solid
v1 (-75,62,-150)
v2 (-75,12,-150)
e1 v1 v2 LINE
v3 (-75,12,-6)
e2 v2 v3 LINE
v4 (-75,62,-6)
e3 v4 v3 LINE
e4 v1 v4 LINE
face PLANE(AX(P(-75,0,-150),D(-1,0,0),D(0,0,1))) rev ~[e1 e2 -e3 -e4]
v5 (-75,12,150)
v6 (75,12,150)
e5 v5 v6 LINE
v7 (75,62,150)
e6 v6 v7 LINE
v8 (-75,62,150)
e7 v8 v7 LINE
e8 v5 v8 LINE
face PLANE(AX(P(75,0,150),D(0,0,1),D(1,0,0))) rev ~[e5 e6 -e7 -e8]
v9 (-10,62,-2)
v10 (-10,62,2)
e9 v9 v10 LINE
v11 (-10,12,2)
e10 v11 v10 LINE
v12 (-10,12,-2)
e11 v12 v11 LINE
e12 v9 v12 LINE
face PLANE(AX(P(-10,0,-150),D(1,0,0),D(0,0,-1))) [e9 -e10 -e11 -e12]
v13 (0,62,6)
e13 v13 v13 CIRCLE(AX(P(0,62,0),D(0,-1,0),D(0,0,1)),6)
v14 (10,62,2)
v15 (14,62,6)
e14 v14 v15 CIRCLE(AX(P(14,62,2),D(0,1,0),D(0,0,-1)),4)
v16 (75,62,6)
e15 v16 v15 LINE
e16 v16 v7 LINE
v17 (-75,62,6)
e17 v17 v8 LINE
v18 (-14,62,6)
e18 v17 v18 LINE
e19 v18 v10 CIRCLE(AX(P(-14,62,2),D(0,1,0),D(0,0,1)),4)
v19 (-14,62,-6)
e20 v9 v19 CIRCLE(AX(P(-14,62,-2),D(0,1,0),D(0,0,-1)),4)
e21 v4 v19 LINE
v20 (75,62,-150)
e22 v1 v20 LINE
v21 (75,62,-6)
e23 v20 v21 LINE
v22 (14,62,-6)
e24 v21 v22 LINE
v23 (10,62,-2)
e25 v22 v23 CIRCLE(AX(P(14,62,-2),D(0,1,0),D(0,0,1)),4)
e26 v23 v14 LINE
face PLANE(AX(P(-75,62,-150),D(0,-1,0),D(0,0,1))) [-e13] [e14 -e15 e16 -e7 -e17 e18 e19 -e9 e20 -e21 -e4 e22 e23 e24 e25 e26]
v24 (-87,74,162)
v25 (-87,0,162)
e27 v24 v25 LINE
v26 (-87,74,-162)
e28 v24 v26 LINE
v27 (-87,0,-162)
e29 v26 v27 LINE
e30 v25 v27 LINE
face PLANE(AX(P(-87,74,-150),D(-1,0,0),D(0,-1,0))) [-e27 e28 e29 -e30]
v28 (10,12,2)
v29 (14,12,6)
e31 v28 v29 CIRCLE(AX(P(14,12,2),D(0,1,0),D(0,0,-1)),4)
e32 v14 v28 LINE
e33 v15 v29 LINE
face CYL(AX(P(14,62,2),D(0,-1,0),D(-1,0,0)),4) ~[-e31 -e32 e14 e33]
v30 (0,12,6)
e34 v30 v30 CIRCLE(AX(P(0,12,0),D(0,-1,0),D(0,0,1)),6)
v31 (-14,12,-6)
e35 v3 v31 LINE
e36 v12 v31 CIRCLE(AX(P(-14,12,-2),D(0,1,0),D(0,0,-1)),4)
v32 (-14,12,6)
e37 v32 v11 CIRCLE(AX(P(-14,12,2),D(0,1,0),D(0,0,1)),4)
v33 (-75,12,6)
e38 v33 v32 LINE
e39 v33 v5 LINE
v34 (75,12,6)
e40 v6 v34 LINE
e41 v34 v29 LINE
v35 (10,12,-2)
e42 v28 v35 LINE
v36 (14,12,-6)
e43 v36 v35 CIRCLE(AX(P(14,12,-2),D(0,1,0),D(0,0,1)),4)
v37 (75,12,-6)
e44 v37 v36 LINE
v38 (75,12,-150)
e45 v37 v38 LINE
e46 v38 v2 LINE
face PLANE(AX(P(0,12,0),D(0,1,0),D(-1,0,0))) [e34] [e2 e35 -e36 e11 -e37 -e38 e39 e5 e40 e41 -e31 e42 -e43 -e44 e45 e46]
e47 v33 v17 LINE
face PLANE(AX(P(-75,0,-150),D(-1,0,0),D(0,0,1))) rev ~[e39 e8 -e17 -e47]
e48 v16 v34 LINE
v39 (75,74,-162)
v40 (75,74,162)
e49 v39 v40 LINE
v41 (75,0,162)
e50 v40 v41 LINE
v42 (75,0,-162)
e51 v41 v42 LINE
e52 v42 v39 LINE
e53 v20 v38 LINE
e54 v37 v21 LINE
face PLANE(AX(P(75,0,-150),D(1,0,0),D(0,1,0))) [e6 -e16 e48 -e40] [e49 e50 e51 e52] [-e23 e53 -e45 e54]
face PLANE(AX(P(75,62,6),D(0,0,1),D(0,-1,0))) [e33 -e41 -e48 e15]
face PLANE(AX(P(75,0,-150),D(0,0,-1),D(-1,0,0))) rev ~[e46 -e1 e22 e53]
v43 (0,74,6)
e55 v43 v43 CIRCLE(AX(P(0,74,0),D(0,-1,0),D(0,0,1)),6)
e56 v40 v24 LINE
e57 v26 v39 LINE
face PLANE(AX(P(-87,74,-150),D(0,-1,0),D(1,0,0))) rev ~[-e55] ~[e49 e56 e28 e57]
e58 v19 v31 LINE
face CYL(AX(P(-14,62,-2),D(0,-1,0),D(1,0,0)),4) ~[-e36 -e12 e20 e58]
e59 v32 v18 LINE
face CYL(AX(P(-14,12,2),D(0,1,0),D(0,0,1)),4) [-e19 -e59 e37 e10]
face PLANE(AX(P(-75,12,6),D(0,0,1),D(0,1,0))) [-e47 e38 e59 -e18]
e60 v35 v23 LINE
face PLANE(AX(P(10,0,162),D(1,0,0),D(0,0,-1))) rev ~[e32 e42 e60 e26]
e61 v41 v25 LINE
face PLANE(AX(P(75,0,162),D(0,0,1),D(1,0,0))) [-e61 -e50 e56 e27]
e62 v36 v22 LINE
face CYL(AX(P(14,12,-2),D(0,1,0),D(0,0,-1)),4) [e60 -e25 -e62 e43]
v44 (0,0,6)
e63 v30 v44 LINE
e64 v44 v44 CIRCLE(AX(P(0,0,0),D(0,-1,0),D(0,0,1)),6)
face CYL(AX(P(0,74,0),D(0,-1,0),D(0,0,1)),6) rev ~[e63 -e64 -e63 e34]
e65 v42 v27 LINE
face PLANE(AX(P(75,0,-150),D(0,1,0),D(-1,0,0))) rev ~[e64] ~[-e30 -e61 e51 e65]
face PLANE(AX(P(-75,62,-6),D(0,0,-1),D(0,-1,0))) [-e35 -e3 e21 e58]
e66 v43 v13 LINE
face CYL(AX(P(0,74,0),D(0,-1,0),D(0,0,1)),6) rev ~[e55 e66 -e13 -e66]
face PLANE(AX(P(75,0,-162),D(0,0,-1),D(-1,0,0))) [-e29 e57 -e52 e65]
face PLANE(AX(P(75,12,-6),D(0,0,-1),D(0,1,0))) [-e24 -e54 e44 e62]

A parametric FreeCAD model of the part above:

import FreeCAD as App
import Part
import Sketcher

V = App.Vector


def edges_at(feature, points):
    """Names of the edges that pass closest to the given points."""
    edges = feature.Shape.Edges
    near = lambda p: min(range(len(edges)), key=lambda i: edges[i].distToShape(Part.Vertex(*p))[0])
    return sorted({f"Edge{near(p) + 1}" for p in points})

doc = App.newDocument("Part")
body = doc.addObject("PartDesign::Body", "Body")

# Sketch on XZ plane
sketch1 = body.newObject("Sketcher::SketchObject", "Sketch")
sketch1.AttachmentSupport = (doc.getObject("XZ_Plane"), [""])
sketch1.MapMode = "FlatFace"
sketch1.addGeometry([
    Part.LineSegment(V(-75, -150, 0), V(-75, 150, 0)),
    Part.LineSegment(V(-75, 150, 0), V(75, 150, 0)),
    Part.LineSegment(V(75, 150, 0), V(75, -150, 0)),
    Part.LineSegment(V(75, -150, 0), V(-75, -150, 0)),
], False)
sketch1.addConstraint([
    Sketcher.Constraint("Coincident", 0, 2, 1, 1),
    Sketcher.Constraint("Coincident", 1, 2, 2, 1),
    Sketcher.Constraint("Coincident", 2, 2, 3, 1),
    Sketcher.Constraint("Coincident", 3, 2, 0, 1),
    Sketcher.Constraint("Vertical", 0),
    Sketcher.Constraint("Horizontal", 1),
    Sketcher.Constraint("Vertical", 2),
    Sketcher.Constraint("Horizontal", 3),
    Sketcher.Constraint("Symmetric", 0, 2, 2, 2, -1, 1),
    Sketcher.Constraint("DistanceX", 1, 1, 1, 2, 150.0),
    Sketcher.Constraint("DistanceY", 0, 1, 0, 2, 300.0),
])
pad1 = body.newObject("PartDesign::Pad", "Pad")
pad1.Profile = sketch1
pad1.Length = 12
pad1.Reversed = True

# Sketch on YZ plane
sketch2 = body.newObject("Sketcher::SketchObject", "Sketch001")
sketch2.AttachmentSupport = (doc.getObject("YZ_Plane"), [""])
sketch2.MapMode = "FlatFace"
sketch2.AttachmentOffset = App.Placement(V(0, 0, -75), App.Rotation())
sketch2.addGeometry([
    Part.LineSegment(V(0, -150, 0), V(0, 150, 0)),
    Part.LineSegment(V(0, 150, 0), V(74, 150, 0)),
    Part.LineSegment(V(74, 150, 0), V(74, -150, 0)),
    Part.LineSegment(V(74, -150, 0), V(0, -150, 0)),
], False)
sketch2.addConstraint([
    Sketcher.Constraint("Coincident", 0, 2, 1, 1),
    Sketcher.Constraint("Coincident", 1, 2, 2, 1),
    Sketcher.Constraint("Coincident", 2, 2, 3, 1),
    Sketcher.Constraint("Coincident", 3, 2, 0, 1),
    Sketcher.Constraint("Vertical", 0),
    Sketcher.Constraint("Horizontal", 1),
    Sketcher.Constraint("Vertical", 2),
    Sketcher.Constraint("Horizontal", 3),
    Sketcher.Constraint("Symmetric", 0, 2, 3, 2, -1, 1),
    Sketcher.Constraint("DistanceX", 1, 1, 1, 2, 74.0),
    Sketcher.Constraint("DistanceY", 0, 1, 0, 2, 300.0),
])
pad2 = body.newObject("PartDesign::Pad", "Pad001")
pad2.Profile = sketch2
pad2.Length = 12
pad2.Reversed = True

# Sketch on YZ plane
sketch3 = body.newObject("Sketcher::SketchObject", "Sketch002")
sketch3.AttachmentSupport = (doc.getObject("YZ_Plane"), [""])
sketch3.MapMode = "FlatFace"
sketch3.AttachmentOffset = App.Placement(V(0, 0, -75), App.Rotation())
sketch3.addGeometry([
    Part.LineSegment(V(74, 150, 0), V(62, 150, 0)),
    Part.LineSegment(V(62, 150, 0), V(62, -150, 0)),
    Part.LineSegment(V(62, -150, 0), V(74, -150, 0)),
    Part.LineSegment(V(74, -150, 0), V(74, 150, 0)),
], False)
sketch3.addConstraint([
    Sketcher.Constraint("Coincident", 0, 2, 1, 1),
    Sketcher.Constraint("Coincident", 1, 2, 2, 1),
    Sketcher.Constraint("Coincident", 2, 2, 3, 1),
    Sketcher.Constraint("Coincident", 3, 2, 0, 1),
    Sketcher.Constraint("Horizontal", 0),
    Sketcher.Constraint("Vertical", 1),
    Sketcher.Constraint("Horizontal", 2),
    Sketcher.Constraint("Vertical", 3),
    Sketcher.Constraint("DistanceX", 0, 2, 0, 1, 12.0),
    Sketcher.Constraint("DistanceY", 1, 2, 1, 1, 300.0),
    Sketcher.Constraint("DistanceX", -1, 1, 0, 2, 62.0),
    Sketcher.Constraint("DistanceY", -1, 1, 0, 2, 150.0),
])
pad3 = body.newObject("PartDesign::Pad", "Pad002")
pad3.Profile = sketch3
pad3.Length = 150

# Sketch on XY plane
sketch4 = body.newObject("Sketcher::SketchObject", "Sketch003")
sketch4.AttachmentSupport = (doc.getObject("XY_Plane"), [""])
sketch4.MapMode = "FlatFace"
sketch4.AttachmentOffset = App.Placement(V(0, 0, 150), App.Rotation())
sketch4.addGeometry([
    Part.LineSegment(V(-87, 0, 0), V(75, 0, 0)),
    Part.LineSegment(V(75, 0, 0), V(75, 74, 0)),
    Part.LineSegment(V(75, 74, 0), V(-87, 74, 0)),
    Part.LineSegment(V(-87, 74, 0), V(-87, 0, 0)),
], False)
sketch4.addConstraint([
    Sketcher.Constraint("Coincident", 0, 2, 1, 1),
    Sketcher.Constraint("Coincident", 1, 2, 2, 1),
    Sketcher.Constraint("Coincident", 2, 2, 3, 1),
    Sketcher.Constraint("Coincident", 3, 2, 0, 1),
    Sketcher.Constraint("Horizontal", 0),
    Sketcher.Constraint("Vertical", 1),
    Sketcher.Constraint("Horizontal", 2),
    Sketcher.Constraint("Vertical", 3),
    Sketcher.Constraint("PointOnObject", 0, 2, -1),
    Sketcher.Constraint("DistanceX", 0, 1, 0, 2, 162.0),
    Sketcher.Constraint("DistanceY", 1, 1, 1, 2, 74.0),
    Sketcher.Constraint("DistanceX", -1, 1, 0, 2, 75.0),
])
pad4 = body.newObject("PartDesign::Pad", "Pad003")
pad4.Profile = sketch4
pad4.Length = 12

# Sketch on XY plane
sketch5 = body.newObject("Sketcher::SketchObject", "Sketch004")
sketch5.AttachmentSupport = (doc.getObject("XY_Plane"), [""])
sketch5.MapMode = "FlatFace"
sketch5.AttachmentOffset = App.Placement(V(0, 0, -150), App.Rotation())
sketch5.addGeometry([
    Part.LineSegment(V(75, 74, 0), V(75, 0, 0)),
    Part.LineSegment(V(75, 0, 0), V(-87, 0, 0)),
    Part.LineSegment(V(-87, 0, 0), V(-87, 74, 0)),
    Part.LineSegment(V(-87, 74, 0), V(75, 74, 0)),
], False)
sketch5.addConstraint([
    Sketcher.Constraint("Coincident", 0, 2, 1, 1),
    Sketcher.Constraint("Coincident", 1, 2, 2, 1),
    Sketcher.Constraint("Coincident", 2, 2, 3, 1),
    Sketcher.Constraint("Coincident", 3, 2, 0, 1),
    Sketcher.Constraint("Vertical", 0),
    Sketcher.Constraint("Horizontal", 1),
    Sketcher.Constraint("Vertical", 2),
    Sketcher.Constraint("Horizontal", 3),
    Sketcher.Constraint("PointOnObject", 0, 2, -1),
    Sketcher.Constraint("DistanceX", 1, 2, 1, 1, 162.0),
    Sketcher.Constraint("DistanceY", 0, 2, 0, 1, 74.0),
    Sketcher.Constraint("DistanceX", -1, 1, 0, 2, 75.0),
])
pad5 = body.newObject("PartDesign::Pad", "Pad004")
pad5.Profile = sketch5
pad5.Length = 12
pad5.Reversed = True

# Sketch on XZ plane
sketch6 = body.newObject("Sketcher::SketchObject", "Sketch005")
sketch6.AttachmentSupport = (doc.getObject("XZ_Plane"), [""])
sketch6.MapMode = "FlatFace"
sketch6.AttachmentOffset = App.Placement(V(0, 0, -74), App.Rotation())
sketch6.addGeometry(Part.Circle(V(0, 0, 0), V(0, 0, 1), 6), False)
sketch6.addConstraint([
    Sketcher.Constraint("Coincident", 0, 3, -1, 1),
    Sketcher.Constraint("Diameter", 0, 12.0),
])
doc.recompute()
hole = body.newObject("PartDesign::Hole", "Hole")
hole.Profile = sketch6
hole.ThreadType = "None"
hole.Diameter = 12
hole.DepthType = "ThroughAll"
hole.Reversed = True

# Sketch on YZ plane
sketch7 = body.newObject("Sketcher::SketchObject", "Sketch006")
sketch7.AttachmentSupport = (doc.getObject("YZ_Plane"), [""])
sketch7.MapMode = "FlatFace"
sketch7.AttachmentOffset = App.Placement(V(0, 0, -75), App.Rotation())
sketch7.addGeometry([
    Part.LineSegment(V(12, -6, 0), V(62, -6, 0)),
    Part.LineSegment(V(62, -6, 0), V(62, 6, 0)),
    Part.LineSegment(V(62, 6, 0), V(12, 6, 0)),
    Part.LineSegment(V(12, 6, 0), V(12, -6, 0)),
], False)
sketch7.addConstraint([
    Sketcher.Constraint("Coincident", 0, 2, 1, 1),
    Sketcher.Constraint("Coincident", 1, 2, 2, 1),
    Sketcher.Constraint("Coincident", 2, 2, 3, 1),
    Sketcher.Constraint("Coincident", 3, 2, 0, 1),
    Sketcher.Constraint("Horizontal", 0),
    Sketcher.Constraint("Vertical", 1),
    Sketcher.Constraint("Horizontal", 2),
    Sketcher.Constraint("Vertical", 3),
    Sketcher.Constraint("DistanceY", 1, 1, 1, 2, 12.0),
    Sketcher.Constraint("DistanceX", -1, 1, 2, 2, 12.0),
    Sketcher.Constraint("DistanceX", 0, 1, 0, 2, 50.0),
    Sketcher.Constraint("DistanceY", 0, 2, -1, 1, 6.0),
])
pad6 = body.newObject("PartDesign::Pad", "Pad005")
pad6.Profile = sketch7
pad6.Length = 65
doc.recompute()

fillet = body.newObject("PartDesign::Fillet", "Fillet")
fillet.Base = (pad6, edges_at(pad6, [(-10, 37, 6), (-10, 37, -6)]))
fillet.Radius = 4

# Sketch on YZ plane
sketch8 = body.newObject("Sketcher::SketchObject", "Sketch007")
sketch8.AttachmentSupport = (doc.getObject("YZ_Plane"), [""])
sketch8.MapMode = "FlatFace"
sketch8.AttachmentOffset = App.Placement(V(0, 0, 75), App.Rotation())
sketch8.addGeometry([
    Part.LineSegment(V(62, 6, 0), V(12, 6, 0)),
    Part.LineSegment(V(12, 6, 0), V(12, -6, 0)),
    Part.LineSegment(V(12, -6, 0), V(62, -6, 0)),
    Part.LineSegment(V(62, -6, 0), V(62, 6, 0)),
], False)
sketch8.addConstraint([
    Sketcher.Constraint("Coincident", 0, 2, 1, 1),
    Sketcher.Constraint("Coincident", 1, 2, 2, 1),
    Sketcher.Constraint("Coincident", 2, 2, 3, 1),
    Sketcher.Constraint("Coincident", 3, 2, 0, 1),
    Sketcher.Constraint("Horizontal", 0),
    Sketcher.Constraint("Vertical", 1),
    Sketcher.Constraint("Horizontal", 2),
    Sketcher.Constraint("Vertical", 3),
    Sketcher.Constraint("DistanceX", 0, 2, 0, 1, 50.0),
    Sketcher.Constraint("DistanceY", 1, 2, 1, 1, 12.0),
    Sketcher.Constraint("DistanceX", -1, 1, 0, 2, 12.0),
    Sketcher.Constraint("DistanceY", -1, 1, 0, 2, 6.0),
])
pad7 = body.newObject("PartDesign::Pad", "Pad006")
pad7.Profile = sketch8
pad7.Length = 65
pad7.Reversed = True
doc.recompute()

fillet2 = body.newObject("PartDesign::Fillet", "Fillet001")
fillet2.Base = (pad7, edges_at(pad7, [(10, 37, 6), (10, 37, -6)]))
fillet2.Radius = 4

doc.recompute()
